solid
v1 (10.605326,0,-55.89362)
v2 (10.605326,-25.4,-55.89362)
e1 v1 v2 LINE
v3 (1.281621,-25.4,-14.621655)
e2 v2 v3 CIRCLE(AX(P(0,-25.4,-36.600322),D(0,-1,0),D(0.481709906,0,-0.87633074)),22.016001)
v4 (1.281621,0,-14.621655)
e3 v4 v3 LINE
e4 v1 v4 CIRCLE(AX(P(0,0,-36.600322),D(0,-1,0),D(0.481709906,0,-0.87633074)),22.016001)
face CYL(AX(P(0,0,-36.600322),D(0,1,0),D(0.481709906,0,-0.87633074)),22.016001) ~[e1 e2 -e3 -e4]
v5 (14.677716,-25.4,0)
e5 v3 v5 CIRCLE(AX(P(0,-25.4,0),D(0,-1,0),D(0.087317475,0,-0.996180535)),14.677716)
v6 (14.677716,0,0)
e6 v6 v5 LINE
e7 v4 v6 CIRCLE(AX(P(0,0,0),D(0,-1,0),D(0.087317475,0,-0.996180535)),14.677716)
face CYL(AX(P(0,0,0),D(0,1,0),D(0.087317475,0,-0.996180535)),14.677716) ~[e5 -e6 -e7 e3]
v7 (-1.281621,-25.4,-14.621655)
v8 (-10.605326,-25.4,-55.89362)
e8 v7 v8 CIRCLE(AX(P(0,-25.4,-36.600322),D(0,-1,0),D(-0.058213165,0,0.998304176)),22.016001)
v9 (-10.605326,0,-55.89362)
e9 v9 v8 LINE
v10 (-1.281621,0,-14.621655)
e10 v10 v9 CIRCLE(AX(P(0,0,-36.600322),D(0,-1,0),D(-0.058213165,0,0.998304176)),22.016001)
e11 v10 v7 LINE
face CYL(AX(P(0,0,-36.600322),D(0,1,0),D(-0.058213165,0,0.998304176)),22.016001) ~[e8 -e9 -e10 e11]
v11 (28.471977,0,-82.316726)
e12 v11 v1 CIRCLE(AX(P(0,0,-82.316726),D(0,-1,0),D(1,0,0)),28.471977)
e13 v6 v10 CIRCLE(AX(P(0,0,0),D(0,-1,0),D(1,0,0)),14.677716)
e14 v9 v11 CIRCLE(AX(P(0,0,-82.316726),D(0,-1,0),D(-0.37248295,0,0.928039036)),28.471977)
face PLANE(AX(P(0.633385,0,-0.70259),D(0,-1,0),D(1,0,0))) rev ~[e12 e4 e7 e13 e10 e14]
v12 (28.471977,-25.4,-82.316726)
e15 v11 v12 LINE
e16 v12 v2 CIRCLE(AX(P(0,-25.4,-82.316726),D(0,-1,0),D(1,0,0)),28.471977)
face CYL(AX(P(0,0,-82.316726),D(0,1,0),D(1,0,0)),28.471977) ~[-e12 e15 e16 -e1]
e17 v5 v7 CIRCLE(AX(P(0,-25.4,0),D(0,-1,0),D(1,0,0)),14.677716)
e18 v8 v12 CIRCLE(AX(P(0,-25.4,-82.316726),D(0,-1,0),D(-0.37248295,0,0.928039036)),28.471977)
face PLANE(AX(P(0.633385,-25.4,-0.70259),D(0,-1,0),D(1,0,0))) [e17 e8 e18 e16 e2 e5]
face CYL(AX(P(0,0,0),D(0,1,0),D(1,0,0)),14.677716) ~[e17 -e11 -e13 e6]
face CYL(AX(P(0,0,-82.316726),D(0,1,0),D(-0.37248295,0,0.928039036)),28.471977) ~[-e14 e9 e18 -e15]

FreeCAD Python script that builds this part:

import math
import FreeCAD as App
import Part
import Sketcher
from FreeCAD import Vector
Q = App.Units.Quantity

doc = App.newDocument("Part")
params = doc.addObject("Spreadsheet::Sheet", "Params")
for row, (alias, value) in enumerate([
    ("pad1_length", "1 in"),
], start=1):
    params.set(f"A{row}", alias)
    params.set(f"B{row}", "=" + value)
    params.setAlias(f"B{row}", alias)

body = doc.addObject("PartDesign::Body", "Body")

# Sketch on XZ plane
sketch1 = body.newObject("Sketcher::SketchObject", "Sketch")
sketch1.AttachmentSupport = (doc.getObject("XZ_Plane"), [""])
sketch1.MapMode = "FlatFace"
sketch1.addGeometry([
    Part.ArcOfCircle(Part.Circle(Vector(0, 0, 0), Vector(0, 0, 1), 15), math.radians(-85), math.radians(0)),  # 0
    Part.ArcOfCircle(Part.Circle(Vector(0, 0, 0), Vector(0, 0, 1), 15), math.radians(0), math.radians(265)),  # 1
    Part.ArcOfCircle(Part.Circle(Vector(0, -37, 0), Vector(0, 0, 1), 22), math.radians(93), math.radians(241)),  # 2
    Part.ArcOfCircle(Part.Circle(Vector(0, -82, 0), Vector(0, 0, 1), 28), math.radians(112), math.radians(360)),  # 3
    Part.ArcOfCircle(Part.Circle(Vector(0, -82, 0), Vector(0, 0, 1), 28), math.radians(0), math.radians(68)),  # 4
    Part.ArcOfCircle(Part.Circle(Vector(0, -37, 0), Vector(0, 0, 1), 22), math.radians(-61), math.radians(87)),  # 5
], False)
sketch1.addConstraint([
    Sketcher.Constraint("Tangent", 0, 2, 1, 1),
    Sketcher.Constraint("Coincident", 1, 2, 2, 1),
    Sketcher.Constraint("Coincident", 2, 2, 3, 1),
    Sketcher.Constraint("Tangent", 3, 2, 4, 1),
    Sketcher.Constraint("Coincident", 4, 2, 5, 1),
    Sketcher.Constraint("Coincident", 5, 2, 0, 1),
    Sketcher.Constraint("Coincident", 0, 3, -1, 1),
    Sketcher.Constraint("Coincident", 5, 3, 2, 3),
    Sketcher.Constraint("Equal", 0, 1),
    Sketcher.Constraint("Equal", 3, 4),
    Sketcher.Constraint("Equal", 2, 5),
    Sketcher.Constraint("Symmetric", 2, 2, 4, 2, -2),
    Sketcher.Constraint("PointOnObject", 0, 2, -1),
    Sketcher.Constraint("Horizontal", 4, 3, 3, 2),
    Sketcher.Constraint("Radius", 2, Q("22.016001 mm")),
    Sketcher.Constraint("Radius", 0, Q("14.677716 mm")),
    Sketcher.Constraint("Radius", 3, Q("28.471977 mm")),
    Sketcher.Constraint("DistanceY", 2, 2, 2, 3, Q("19.293299 mm")),
    Sketcher.Constraint("DistanceY", 2, 3, -1, 1, Q("36.600322 mm")),
])
pad1 = body.newObject("PartDesign::Pad", "Pad")
pad1.Profile = sketch1
pad1.setExpression("Length", "Params.pad1_length")

doc.recompute()
